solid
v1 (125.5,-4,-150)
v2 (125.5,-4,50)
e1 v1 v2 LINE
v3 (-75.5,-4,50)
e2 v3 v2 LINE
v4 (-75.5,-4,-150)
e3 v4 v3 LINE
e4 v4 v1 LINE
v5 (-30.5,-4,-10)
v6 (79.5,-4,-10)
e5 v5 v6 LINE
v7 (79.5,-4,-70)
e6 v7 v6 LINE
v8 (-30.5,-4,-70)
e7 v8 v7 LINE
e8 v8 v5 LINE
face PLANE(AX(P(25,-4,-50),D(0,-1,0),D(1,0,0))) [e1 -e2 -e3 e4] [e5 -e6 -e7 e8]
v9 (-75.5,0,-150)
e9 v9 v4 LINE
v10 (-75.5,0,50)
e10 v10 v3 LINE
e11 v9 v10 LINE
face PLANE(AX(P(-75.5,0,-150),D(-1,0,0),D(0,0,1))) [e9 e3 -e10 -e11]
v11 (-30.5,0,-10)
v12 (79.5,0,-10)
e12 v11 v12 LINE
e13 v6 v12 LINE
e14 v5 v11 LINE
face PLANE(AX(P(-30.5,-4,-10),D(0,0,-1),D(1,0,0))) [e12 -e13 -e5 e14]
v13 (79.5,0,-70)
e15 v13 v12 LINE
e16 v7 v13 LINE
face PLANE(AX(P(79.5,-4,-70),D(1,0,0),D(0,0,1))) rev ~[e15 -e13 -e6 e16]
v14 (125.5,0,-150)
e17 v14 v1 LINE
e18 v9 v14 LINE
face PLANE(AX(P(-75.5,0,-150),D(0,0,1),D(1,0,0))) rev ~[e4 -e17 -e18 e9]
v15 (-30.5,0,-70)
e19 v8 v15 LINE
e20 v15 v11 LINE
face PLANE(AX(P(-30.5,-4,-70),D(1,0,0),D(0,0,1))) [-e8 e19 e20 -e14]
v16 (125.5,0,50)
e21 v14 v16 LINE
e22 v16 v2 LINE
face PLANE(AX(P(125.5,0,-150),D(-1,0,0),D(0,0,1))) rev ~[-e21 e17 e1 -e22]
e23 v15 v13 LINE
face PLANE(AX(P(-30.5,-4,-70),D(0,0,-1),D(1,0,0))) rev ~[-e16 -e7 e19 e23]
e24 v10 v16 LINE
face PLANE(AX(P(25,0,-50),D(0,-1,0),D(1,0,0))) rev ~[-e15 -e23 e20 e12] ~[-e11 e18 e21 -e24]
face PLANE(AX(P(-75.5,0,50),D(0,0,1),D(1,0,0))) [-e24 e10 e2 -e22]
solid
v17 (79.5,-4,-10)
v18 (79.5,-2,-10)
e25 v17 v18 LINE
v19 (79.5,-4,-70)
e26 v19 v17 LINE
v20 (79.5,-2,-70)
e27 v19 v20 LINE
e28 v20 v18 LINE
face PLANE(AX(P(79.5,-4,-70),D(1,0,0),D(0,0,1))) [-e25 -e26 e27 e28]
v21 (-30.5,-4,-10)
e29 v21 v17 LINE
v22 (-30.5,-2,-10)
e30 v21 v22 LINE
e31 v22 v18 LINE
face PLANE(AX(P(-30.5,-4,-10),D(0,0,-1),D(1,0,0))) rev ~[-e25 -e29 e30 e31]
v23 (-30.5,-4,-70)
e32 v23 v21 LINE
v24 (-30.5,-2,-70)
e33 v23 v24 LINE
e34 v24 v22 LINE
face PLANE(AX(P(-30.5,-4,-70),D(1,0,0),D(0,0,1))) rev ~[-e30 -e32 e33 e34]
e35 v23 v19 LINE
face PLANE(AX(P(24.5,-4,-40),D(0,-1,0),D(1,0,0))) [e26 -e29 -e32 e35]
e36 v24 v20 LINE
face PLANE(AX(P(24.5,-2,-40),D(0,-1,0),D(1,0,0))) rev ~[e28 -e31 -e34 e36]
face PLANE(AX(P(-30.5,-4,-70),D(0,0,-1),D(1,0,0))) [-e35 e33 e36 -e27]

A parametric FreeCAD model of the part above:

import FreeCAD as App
import Part
import Sketcher

V = App.Vector

doc = App.newDocument("Part")
params = doc.addObject("Spreadsheet::Sheet", "Params")
for row, (alias, value) in enumerate([
    ("sketch1_width", "201 mm"),
    ("sketch1_height", "200 mm"),
    ("pad1_length", "4 mm"),
    ("sketch2_width", "110 mm"),
    ("sketch2_height", "60 mm"),
    ("pocket1_length", "25 mm"),
    ("sketch3_width", "110 mm"),
    ("sketch3_height", "60 mm"),
    ("pad2_length", "2 mm"),
], start=1):
    params.set(f"A{row}", alias)
    params.set(f"B{row}", "=" + value)
    params.setAlias(f"B{row}", alias)

body = doc.addObject("PartDesign::Body", "Body")

sketch1 = body.newObject("Sketcher::SketchObject", "Sketch")
sketch1.AttachmentSupport = (doc.getObject("XZ_Plane"), [""])
sketch1.MapMode = "FlatFace"
sketch1.addGeometry(Part.LineSegment(V(-76, 50, 0), V(-76, -150, 0)), False)
sketch1.addGeometry(Part.LineSegment(V(-76, -150, 0), V(126, -150, 0)), False)
sketch1.addGeometry(Part.LineSegment(V(126, -150, 0), V(126, 50, 0)), False)
sketch1.addGeometry(Part.LineSegment(V(126, 50, 0), V(-76, 50, 0)), False)
sketch1.addConstraint(Sketcher.Constraint("Coincident", 0, 2, 1, 1))
sketch1.addConstraint(Sketcher.Constraint("Coincident", 1, 2, 2, 1))
sketch1.addConstraint(Sketcher.Constraint("Coincident", 2, 2, 3, 1))
sketch1.addConstraint(Sketcher.Constraint("Coincident", 3, 2, 0, 1))
sketch1.addConstraint(Sketcher.Constraint("Vertical", 0))
sketch1.addConstraint(Sketcher.Constraint("Horizontal", 1))
sketch1.addConstraint(Sketcher.Constraint("Vertical", 2))
sketch1.addConstraint(Sketcher.Constraint("Horizontal", 3))
sketch1.addConstraint(Sketcher.Constraint("DistanceX", 1, 1, 1, 2, 201.0))
sketch1.addConstraint(Sketcher.Constraint("DistanceY", 0, 2, 0, 1, 200.0))
sketch1.addConstraint(Sketcher.Constraint("DistanceY", 0, 2, -1, 1, 150.0))
sketch1.addConstraint(Sketcher.Constraint("DistanceX", 0, 2, -1, 1, 75.5))
sketch1.setExpression("Constraints[8]", "Params.sketch1_width")
sketch1.setExpression("Constraints[9]", "Params.sketch1_height")
pad1 = body.newObject("PartDesign::Pad", "Pad")
pad1.Profile = sketch1
pad1.setExpression("Length", "Params.pad1_length")

sketch2 = body.newObject("Sketcher::SketchObject", "Sketch001")
sketch2.AttachmentSupport = (doc.getObject("XZ_Plane"), [""])
sketch2.MapMode = "FlatFace"
sketch2.AttachmentOffset = App.Placement(V(0, 0, 4), App.Rotation())
sketch2.addGeometry(Part.LineSegment(V(-30, -10, 0), V(-30, -70, 0)), False)
sketch2.addGeometry(Part.LineSegment(V(-30, -70, 0), V(80, -70, 0)), False)
sketch2.addGeometry(Part.LineSegment(V(80, -70, 0), V(80, -10, 0)), False)
sketch2.addGeometry(Part.LineSegment(V(80, -10, 0), V(-30, -10, 0)), False)
sketch2.addConstraint(Sketcher.Constraint("Coincident", 0, 2, 1, 1))
sketch2.addConstraint(Sketcher.Constraint("Coincident", 1, 2, 2, 1))
sketch2.addConstraint(Sketcher.Constraint("Coincident", 2, 2, 3, 1))
sketch2.addConstraint(Sketcher.Constraint("Coincident", 3, 2, 0, 1))
sketch2.addConstraint(Sketcher.Constraint("Vertical", 0))
sketch2.addConstraint(Sketcher.Constraint("Horizontal", 1))
sketch2.addConstraint(Sketcher.Constraint("Vertical", 2))
sketch2.addConstraint(Sketcher.Constraint("Horizontal", 3))
sketch2.addConstraint(Sketcher.Constraint("DistanceX", 1, 1, 1, 2, 110.0))
sketch2.addConstraint(Sketcher.Constraint("DistanceY", 0, 2, 0, 1, 60.0))
sketch2.addConstraint(Sketcher.Constraint("DistanceY", 0, 2, -1, 1, 70.0))
sketch2.addConstraint(Sketcher.Constraint("DistanceX", 0, 2, -1, 1, 30.5))
sketch2.setExpression("Constraints[8]", "Params.sketch2_width")
sketch2.setExpression("Constraints[9]", "Params.sketch2_height")
pocket1 = body.newObject("PartDesign::Pocket", "Pocket")
pocket1.Profile = sketch2
pocket1.setExpression("Length", "Params.pocket1_length")
body2 = doc.addObject("PartDesign::Body", "Body001")

sketch3 = body2.newObject("Sketcher::SketchObject", "Sketch002")
sketch3.AttachmentSupport = (doc.getObject("XZ_Plane001"), [""])
sketch3.MapMode = "FlatFace"
sketch3.AttachmentOffset = App.Placement(V(0, 0, 4), App.Rotation())
sketch3.addGeometry(Part.LineSegment(V(-30, -10, 0), V(-30, -70, 0)), False)
sketch3.addGeometry(Part.LineSegment(V(-30, -70, 0), V(80, -70, 0)), False)
sketch3.addGeometry(Part.LineSegment(V(80, -70, 0), V(80, -10, 0)), False)
sketch3.addGeometry(Part.LineSegment(V(80, -10, 0), V(-30, -10, 0)), False)
sketch3.addConstraint(Sketcher.Constraint("Coincident", 0, 2, 1, 1))
sketch3.addConstraint(Sketcher.Constraint("Coincident", 1, 2, 2, 1))
sketch3.addConstraint(Sketcher.Constraint("Coincident", 2, 2, 3, 1))
sketch3.addConstraint(Sketcher.Constraint("Coincident", 3, 2, 0, 1))
sketch3.addConstraint(Sketcher.Constraint("Vertical", 0))
sketch3.addConstraint(Sketcher.Constraint("Horizontal", 1))
sketch3.addConstraint(Sketcher.Constraint("Vertical", 2))
sketch3.addConstraint(Sketcher.Constraint("Horizontal", 3))
sketch3.addConstraint(Sketcher.Constraint("DistanceX", 1, 1, 1, 2, 110.0))
sketch3.addConstraint(Sketcher.Constraint("DistanceY", 0, 2, 0, 1, 60.0))
sketch3.addConstraint(Sketcher.Constraint("DistanceY", 0, 2, -1, 1, 70.0))
sketch3.addConstraint(Sketcher.Constraint("DistanceX", 0, 2, -1, 1, 30.5))
sketch3.setExpression("Constraints[8]", "Params.sketch3_width")
sketch3.setExpression("Constraints[9]", "Params.sketch3_height")
pad2 = body2.newObject("PartDesign::Pad", "Pad001")
pad2.Profile = sketch3
pad2.setExpression("Length", "Params.pad2_length")
pad2.Reversed = True

doc.recompute()
